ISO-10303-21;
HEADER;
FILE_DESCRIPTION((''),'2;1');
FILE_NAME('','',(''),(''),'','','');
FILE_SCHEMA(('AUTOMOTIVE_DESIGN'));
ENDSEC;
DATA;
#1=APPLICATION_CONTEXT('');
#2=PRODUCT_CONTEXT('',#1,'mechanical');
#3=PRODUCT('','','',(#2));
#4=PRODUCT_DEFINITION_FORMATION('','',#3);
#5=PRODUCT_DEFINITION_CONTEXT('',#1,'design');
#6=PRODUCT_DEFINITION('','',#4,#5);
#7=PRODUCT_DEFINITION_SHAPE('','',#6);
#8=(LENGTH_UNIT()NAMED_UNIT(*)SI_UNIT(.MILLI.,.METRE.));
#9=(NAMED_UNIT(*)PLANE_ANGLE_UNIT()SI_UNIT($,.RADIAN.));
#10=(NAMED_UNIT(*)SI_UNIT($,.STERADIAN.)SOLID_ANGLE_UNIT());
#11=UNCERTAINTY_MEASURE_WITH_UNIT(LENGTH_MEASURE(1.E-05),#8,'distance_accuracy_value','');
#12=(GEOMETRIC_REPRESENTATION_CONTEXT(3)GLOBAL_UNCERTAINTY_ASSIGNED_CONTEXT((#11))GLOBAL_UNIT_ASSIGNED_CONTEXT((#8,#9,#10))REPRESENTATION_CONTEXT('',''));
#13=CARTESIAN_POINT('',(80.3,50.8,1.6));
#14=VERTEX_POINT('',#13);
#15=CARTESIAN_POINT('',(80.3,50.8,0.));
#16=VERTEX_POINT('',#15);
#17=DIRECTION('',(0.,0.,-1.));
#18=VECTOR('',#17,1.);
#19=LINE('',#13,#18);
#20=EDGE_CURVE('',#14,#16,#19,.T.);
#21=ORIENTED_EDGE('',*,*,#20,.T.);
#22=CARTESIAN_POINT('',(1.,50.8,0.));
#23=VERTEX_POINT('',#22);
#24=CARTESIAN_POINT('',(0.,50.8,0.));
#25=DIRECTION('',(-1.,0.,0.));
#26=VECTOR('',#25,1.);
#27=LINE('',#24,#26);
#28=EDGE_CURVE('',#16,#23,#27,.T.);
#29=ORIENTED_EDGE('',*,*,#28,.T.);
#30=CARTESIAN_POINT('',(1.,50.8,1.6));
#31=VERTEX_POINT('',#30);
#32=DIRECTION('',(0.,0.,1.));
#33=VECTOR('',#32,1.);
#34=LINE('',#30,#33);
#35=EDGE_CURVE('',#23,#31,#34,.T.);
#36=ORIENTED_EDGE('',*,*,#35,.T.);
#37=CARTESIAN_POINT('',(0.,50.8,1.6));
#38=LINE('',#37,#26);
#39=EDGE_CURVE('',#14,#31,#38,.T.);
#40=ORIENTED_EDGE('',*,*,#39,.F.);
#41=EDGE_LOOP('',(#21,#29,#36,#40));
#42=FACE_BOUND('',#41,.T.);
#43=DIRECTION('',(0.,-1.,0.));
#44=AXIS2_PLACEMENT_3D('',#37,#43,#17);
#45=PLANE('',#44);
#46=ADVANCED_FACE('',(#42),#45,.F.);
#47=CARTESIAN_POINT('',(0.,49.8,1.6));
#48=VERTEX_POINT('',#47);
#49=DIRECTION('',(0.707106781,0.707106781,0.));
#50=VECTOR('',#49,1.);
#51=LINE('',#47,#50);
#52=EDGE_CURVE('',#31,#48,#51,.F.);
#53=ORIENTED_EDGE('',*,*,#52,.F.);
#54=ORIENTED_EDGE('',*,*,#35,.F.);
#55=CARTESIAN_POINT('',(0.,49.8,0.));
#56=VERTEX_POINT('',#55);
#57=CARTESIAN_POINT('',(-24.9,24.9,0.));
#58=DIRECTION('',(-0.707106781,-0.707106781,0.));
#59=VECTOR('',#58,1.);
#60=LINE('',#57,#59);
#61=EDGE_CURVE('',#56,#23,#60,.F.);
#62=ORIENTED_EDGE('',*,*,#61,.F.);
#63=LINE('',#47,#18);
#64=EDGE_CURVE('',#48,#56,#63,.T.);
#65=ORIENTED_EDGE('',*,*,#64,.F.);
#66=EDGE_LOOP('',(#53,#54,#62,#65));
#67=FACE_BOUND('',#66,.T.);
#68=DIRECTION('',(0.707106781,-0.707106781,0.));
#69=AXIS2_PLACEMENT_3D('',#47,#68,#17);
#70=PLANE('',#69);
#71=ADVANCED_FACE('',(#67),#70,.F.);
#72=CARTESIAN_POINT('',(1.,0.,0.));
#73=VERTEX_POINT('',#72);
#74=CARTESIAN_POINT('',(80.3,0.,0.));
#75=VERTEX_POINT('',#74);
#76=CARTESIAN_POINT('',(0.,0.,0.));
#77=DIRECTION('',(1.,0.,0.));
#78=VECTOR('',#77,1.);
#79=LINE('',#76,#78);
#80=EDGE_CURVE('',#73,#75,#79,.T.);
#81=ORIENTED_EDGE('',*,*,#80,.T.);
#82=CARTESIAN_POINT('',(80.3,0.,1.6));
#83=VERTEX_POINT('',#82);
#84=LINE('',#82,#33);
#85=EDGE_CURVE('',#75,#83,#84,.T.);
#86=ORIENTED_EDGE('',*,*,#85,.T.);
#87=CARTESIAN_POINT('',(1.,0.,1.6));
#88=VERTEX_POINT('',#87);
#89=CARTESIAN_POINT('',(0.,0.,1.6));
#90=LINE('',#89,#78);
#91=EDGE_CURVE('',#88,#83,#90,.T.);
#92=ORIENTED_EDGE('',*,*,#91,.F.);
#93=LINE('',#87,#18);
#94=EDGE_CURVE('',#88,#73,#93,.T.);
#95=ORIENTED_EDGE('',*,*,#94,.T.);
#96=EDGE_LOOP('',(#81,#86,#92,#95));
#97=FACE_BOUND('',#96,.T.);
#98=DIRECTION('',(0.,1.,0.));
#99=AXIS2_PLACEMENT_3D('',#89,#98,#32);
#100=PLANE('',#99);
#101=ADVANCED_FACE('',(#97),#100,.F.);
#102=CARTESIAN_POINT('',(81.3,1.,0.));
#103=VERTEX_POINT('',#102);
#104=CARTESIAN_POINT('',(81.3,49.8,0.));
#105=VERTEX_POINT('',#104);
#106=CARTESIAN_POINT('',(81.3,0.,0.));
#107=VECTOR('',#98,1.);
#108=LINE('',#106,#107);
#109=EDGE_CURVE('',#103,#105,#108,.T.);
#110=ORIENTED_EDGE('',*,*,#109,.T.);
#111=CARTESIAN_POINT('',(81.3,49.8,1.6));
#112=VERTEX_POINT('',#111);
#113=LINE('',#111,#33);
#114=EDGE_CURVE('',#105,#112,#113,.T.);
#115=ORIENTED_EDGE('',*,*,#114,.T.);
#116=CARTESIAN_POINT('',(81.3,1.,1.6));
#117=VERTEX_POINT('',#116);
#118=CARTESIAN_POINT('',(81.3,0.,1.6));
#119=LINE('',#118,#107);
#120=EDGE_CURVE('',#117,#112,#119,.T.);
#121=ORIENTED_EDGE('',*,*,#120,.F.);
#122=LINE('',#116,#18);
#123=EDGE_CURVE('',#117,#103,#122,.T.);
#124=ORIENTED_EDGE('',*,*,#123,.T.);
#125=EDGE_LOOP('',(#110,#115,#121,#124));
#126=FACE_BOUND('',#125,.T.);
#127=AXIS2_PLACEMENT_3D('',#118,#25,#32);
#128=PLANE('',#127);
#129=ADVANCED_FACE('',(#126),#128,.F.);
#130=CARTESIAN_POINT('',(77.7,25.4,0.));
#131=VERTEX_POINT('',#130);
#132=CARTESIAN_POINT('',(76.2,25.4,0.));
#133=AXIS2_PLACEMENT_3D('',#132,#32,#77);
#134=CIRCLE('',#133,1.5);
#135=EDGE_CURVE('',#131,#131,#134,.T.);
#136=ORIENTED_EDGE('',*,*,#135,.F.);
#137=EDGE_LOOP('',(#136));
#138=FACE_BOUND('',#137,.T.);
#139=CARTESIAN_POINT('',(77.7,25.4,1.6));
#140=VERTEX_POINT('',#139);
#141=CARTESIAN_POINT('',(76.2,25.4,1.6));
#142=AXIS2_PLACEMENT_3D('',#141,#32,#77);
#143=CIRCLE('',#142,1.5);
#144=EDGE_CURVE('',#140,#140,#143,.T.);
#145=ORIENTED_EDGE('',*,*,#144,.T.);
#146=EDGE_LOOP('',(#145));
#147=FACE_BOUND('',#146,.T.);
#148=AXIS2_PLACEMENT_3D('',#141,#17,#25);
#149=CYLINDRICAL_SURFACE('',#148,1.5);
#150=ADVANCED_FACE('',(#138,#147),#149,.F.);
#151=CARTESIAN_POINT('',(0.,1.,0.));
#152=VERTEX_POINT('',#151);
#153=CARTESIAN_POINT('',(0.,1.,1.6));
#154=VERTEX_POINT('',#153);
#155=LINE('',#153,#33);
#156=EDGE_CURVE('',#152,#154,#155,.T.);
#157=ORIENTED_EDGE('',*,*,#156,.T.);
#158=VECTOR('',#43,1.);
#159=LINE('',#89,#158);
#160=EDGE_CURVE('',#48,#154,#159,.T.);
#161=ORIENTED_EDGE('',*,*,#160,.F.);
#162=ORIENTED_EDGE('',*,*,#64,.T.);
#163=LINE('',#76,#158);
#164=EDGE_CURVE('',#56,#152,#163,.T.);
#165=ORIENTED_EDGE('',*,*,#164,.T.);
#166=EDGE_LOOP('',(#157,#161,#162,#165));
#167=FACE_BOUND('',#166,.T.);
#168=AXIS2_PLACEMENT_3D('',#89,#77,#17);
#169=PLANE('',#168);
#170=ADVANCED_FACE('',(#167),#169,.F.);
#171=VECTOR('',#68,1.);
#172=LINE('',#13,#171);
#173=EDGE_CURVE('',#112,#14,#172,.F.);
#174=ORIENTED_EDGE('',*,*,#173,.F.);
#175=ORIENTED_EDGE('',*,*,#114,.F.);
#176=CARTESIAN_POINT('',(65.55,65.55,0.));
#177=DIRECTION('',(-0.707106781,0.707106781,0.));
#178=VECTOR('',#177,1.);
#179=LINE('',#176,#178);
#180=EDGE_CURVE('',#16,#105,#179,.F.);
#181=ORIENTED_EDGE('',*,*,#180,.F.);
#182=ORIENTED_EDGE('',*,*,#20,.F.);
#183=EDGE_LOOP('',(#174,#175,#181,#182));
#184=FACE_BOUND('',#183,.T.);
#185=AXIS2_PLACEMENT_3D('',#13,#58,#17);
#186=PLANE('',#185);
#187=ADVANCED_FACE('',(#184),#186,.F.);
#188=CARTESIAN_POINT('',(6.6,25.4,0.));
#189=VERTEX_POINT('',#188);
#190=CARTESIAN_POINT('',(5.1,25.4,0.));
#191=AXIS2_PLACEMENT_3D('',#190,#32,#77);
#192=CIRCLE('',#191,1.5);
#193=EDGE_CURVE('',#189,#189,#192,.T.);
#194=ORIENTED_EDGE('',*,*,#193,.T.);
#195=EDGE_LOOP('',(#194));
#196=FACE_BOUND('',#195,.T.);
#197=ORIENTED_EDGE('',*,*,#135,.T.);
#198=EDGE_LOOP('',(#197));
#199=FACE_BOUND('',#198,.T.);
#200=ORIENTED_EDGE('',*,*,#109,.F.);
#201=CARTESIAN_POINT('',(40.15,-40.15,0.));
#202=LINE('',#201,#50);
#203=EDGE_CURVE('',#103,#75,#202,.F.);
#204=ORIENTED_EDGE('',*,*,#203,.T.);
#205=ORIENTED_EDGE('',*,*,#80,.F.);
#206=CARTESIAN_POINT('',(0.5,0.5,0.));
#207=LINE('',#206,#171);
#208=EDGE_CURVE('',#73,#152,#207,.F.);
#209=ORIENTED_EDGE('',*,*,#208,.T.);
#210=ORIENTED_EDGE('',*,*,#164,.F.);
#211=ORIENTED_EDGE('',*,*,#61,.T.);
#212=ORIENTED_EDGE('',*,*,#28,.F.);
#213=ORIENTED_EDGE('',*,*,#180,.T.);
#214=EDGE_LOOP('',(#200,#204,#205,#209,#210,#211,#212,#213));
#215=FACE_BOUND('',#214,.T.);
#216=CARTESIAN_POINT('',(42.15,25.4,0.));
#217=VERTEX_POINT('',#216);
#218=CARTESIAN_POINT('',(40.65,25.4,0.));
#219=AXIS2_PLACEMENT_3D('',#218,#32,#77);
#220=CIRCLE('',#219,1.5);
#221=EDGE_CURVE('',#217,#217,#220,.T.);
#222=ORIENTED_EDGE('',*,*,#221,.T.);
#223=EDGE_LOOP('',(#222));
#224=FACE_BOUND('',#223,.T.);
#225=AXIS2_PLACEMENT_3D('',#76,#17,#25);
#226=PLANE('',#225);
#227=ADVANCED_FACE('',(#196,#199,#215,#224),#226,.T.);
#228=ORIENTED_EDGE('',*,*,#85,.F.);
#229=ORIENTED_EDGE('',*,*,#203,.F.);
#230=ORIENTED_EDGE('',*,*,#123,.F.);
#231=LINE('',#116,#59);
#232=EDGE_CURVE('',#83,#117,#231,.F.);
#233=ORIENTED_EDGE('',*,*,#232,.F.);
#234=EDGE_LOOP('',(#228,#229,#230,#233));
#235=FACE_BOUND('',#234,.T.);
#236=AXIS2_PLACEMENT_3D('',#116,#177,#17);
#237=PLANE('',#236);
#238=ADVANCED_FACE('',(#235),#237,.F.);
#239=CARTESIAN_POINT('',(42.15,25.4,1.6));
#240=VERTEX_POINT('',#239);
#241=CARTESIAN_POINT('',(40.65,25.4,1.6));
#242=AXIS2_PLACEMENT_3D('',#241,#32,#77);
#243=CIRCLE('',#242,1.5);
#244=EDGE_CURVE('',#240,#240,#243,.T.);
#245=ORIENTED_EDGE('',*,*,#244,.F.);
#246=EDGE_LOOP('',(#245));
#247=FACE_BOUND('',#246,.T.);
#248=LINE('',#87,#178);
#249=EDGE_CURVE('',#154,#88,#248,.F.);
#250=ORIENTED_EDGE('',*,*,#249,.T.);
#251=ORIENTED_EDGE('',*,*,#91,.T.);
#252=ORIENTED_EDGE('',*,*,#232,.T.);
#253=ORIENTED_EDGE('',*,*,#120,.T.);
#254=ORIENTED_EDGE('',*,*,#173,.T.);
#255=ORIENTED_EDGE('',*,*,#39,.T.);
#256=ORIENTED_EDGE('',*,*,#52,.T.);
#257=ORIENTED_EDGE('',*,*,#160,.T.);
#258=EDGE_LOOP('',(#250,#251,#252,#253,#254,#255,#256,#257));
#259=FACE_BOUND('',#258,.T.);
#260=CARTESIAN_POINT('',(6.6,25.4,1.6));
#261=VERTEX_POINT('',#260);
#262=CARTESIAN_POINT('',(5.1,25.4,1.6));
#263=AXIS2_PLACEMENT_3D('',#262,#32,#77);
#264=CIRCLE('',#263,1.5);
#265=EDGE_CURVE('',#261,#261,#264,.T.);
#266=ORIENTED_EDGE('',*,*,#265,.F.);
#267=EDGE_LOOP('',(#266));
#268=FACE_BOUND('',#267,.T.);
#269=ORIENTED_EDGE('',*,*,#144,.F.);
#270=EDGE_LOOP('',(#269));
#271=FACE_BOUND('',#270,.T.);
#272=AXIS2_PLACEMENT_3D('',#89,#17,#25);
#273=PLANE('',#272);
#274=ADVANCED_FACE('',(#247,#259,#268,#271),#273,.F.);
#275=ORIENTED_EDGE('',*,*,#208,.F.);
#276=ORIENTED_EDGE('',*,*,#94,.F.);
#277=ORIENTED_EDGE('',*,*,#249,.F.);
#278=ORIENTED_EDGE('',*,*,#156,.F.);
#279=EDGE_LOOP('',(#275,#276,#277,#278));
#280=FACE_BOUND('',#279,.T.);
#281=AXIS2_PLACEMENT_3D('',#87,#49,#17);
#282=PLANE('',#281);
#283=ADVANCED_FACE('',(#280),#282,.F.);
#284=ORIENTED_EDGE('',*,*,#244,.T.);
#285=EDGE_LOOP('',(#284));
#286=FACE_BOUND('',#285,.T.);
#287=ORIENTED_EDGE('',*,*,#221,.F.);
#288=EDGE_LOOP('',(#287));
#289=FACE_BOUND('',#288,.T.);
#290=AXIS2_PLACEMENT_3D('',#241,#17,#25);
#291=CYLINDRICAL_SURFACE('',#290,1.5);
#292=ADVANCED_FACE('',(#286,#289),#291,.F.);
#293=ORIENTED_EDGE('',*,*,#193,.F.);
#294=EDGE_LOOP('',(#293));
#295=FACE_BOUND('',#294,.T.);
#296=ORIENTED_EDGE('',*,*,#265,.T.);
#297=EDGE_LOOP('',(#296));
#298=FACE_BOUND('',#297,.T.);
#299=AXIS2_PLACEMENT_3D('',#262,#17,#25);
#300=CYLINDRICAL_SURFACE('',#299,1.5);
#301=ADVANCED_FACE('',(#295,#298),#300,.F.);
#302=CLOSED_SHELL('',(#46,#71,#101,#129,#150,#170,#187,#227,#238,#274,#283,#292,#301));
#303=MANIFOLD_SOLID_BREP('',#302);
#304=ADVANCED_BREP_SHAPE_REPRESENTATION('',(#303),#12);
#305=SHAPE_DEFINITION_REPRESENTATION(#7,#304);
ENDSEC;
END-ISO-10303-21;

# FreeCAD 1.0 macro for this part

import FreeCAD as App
import Part
import Sketcher

V = App.Vector
Q = App.Units.Quantity


def edges_at(feature, points):
    """Names of the edges that pass closest to the given points."""
    edges = feature.Shape.Edges
    near = lambda p: min(range(len(edges)), key=lambda i: edges[i].distToShape(Part.Vertex(*p))[0])
    return sorted({f"Edge{near(p) + 1}" for p in points})


def add_polygon(sketch, points):
    """Adds a closed chain of lines whose ends are joined by coincident constraints."""
    first, n = sketch.GeometryCount, len(points)
    for a, b in zip(points, points[1:] + points[:1]):
        sketch.addGeometry(Part.LineSegment(App.Vector(*a, 0), App.Vector(*b, 0)), False)
    for i in range(n):
        sketch.addConstraint(Sketcher.Constraint("Coincident", first + i, 2, first + (i + 1) % n, 1))

doc = App.newDocument("Part")
params = doc.addObject("Spreadsheet::Sheet", "Params")
for row, (alias, value) in enumerate([
    ("sketch1_diameter", "3 mm"),
    ("sketch1_width", "81.3 mm"),
    ("sketch1_height", "50.8 mm"),
    ("pad1_length", "1.6 mm"),
    ("chamfer_size", "1 mm"),
], start=1):
    params.set(f"A{row}", alias)
    params.set(f"B{row}", "=" + value)
    params.setAlias(f"B{row}", alias)

body = doc.addObject("PartDesign::Body", "Body")

sketch1 = doc.addObject("Sketcher::SketchObject", "Sketch")
body.addObject(sketch1)
sketch1.AttachmentSupport = (doc.XY_Plane, [""])
sketch1.MapMode = "FlatFace"
add_polygon(sketch1, [(0, 50.8), (0, 0), (81.3, 0), (81.3, 50.8)])
sketch1.addGeometry(Part.Circle(V(5.1, 25.4, 0), V(0, 0, 1), 1.5), False)
sketch1.addGeometry(Part.Circle(V(40.6, 25.4, 0), V(0, 0, 1), 1.5), False)
sketch1.addGeometry(Part.Circle(V(76.2, 25.4, 0), V(0, 0, 1), 1.5), False)
sketch1.addConstraint([
    Sketcher.Constraint("Vertical", 0),
    Sketcher.Constraint("Horizontal", 1),
    Sketcher.Constraint("Vertical", 2),
    Sketcher.Constraint("Horizontal", 3),
    Sketcher.Constraint("Coincident", 0, 2, -1, 1),
    Sketcher.Constraint("Equal", 4, 5),
    Sketcher.Constraint("Equal", 5, 6),
    Sketcher.Constraint("Horizontal", 4, 3, 5, 3),
    Sketcher.Constraint("Horizontal", 5, 3, 6, 3),
    Sketcher.Constraint("Diameter", 4, Q("3 mm")),
    Sketcher.Constraint("DistanceX", 1, 1, 1, 2, Q("81.3 mm")),
    Sketcher.Constraint("DistanceY", 0, 2, 0, 1, Q("50.8 mm")),
    Sketcher.Constraint("DistanceX", -1, 1, 4, 3, Q("5.1 mm")),
    Sketcher.Constraint("DistanceY", -1, 1, 4, 3, Q("25.4 mm")),
    Sketcher.Constraint("DistanceX", -1, 1, 6, 3, Q("76.2 mm")),
    Sketcher.Constraint("DistanceX", -1, 1, 5, 3, Q("40.65 mm")),
])
sketch1.setExpression("Constraints[13]", "Params.sketch1_diameter")
sketch1.setExpression("Constraints[14]", "Params.sketch1_width")
sketch1.setExpression("Constraints[15]", "Params.sketch1_height")
pad1 = doc.addObject("PartDesign::Pad", "Pad")
body.addObject(pad1)
pad1.Profile = sketch1
pad1.setExpression("Length", "Params.pad1_length")
doc.recompute()

chamfer = doc.addObject("PartDesign::Chamfer", "Chamfer")
body.addObject(chamfer)
chamfer.Base = (pad1, edges_at(pad1, [
    (0, 50.8, 0.8),
    (81.3, 50.8, 0.8),
    (81.3, 0, 0.8),
    (0, 0, 0.8),
]))
chamfer.setExpression("Size", "Params.chamfer_size")

doc.recompute()
